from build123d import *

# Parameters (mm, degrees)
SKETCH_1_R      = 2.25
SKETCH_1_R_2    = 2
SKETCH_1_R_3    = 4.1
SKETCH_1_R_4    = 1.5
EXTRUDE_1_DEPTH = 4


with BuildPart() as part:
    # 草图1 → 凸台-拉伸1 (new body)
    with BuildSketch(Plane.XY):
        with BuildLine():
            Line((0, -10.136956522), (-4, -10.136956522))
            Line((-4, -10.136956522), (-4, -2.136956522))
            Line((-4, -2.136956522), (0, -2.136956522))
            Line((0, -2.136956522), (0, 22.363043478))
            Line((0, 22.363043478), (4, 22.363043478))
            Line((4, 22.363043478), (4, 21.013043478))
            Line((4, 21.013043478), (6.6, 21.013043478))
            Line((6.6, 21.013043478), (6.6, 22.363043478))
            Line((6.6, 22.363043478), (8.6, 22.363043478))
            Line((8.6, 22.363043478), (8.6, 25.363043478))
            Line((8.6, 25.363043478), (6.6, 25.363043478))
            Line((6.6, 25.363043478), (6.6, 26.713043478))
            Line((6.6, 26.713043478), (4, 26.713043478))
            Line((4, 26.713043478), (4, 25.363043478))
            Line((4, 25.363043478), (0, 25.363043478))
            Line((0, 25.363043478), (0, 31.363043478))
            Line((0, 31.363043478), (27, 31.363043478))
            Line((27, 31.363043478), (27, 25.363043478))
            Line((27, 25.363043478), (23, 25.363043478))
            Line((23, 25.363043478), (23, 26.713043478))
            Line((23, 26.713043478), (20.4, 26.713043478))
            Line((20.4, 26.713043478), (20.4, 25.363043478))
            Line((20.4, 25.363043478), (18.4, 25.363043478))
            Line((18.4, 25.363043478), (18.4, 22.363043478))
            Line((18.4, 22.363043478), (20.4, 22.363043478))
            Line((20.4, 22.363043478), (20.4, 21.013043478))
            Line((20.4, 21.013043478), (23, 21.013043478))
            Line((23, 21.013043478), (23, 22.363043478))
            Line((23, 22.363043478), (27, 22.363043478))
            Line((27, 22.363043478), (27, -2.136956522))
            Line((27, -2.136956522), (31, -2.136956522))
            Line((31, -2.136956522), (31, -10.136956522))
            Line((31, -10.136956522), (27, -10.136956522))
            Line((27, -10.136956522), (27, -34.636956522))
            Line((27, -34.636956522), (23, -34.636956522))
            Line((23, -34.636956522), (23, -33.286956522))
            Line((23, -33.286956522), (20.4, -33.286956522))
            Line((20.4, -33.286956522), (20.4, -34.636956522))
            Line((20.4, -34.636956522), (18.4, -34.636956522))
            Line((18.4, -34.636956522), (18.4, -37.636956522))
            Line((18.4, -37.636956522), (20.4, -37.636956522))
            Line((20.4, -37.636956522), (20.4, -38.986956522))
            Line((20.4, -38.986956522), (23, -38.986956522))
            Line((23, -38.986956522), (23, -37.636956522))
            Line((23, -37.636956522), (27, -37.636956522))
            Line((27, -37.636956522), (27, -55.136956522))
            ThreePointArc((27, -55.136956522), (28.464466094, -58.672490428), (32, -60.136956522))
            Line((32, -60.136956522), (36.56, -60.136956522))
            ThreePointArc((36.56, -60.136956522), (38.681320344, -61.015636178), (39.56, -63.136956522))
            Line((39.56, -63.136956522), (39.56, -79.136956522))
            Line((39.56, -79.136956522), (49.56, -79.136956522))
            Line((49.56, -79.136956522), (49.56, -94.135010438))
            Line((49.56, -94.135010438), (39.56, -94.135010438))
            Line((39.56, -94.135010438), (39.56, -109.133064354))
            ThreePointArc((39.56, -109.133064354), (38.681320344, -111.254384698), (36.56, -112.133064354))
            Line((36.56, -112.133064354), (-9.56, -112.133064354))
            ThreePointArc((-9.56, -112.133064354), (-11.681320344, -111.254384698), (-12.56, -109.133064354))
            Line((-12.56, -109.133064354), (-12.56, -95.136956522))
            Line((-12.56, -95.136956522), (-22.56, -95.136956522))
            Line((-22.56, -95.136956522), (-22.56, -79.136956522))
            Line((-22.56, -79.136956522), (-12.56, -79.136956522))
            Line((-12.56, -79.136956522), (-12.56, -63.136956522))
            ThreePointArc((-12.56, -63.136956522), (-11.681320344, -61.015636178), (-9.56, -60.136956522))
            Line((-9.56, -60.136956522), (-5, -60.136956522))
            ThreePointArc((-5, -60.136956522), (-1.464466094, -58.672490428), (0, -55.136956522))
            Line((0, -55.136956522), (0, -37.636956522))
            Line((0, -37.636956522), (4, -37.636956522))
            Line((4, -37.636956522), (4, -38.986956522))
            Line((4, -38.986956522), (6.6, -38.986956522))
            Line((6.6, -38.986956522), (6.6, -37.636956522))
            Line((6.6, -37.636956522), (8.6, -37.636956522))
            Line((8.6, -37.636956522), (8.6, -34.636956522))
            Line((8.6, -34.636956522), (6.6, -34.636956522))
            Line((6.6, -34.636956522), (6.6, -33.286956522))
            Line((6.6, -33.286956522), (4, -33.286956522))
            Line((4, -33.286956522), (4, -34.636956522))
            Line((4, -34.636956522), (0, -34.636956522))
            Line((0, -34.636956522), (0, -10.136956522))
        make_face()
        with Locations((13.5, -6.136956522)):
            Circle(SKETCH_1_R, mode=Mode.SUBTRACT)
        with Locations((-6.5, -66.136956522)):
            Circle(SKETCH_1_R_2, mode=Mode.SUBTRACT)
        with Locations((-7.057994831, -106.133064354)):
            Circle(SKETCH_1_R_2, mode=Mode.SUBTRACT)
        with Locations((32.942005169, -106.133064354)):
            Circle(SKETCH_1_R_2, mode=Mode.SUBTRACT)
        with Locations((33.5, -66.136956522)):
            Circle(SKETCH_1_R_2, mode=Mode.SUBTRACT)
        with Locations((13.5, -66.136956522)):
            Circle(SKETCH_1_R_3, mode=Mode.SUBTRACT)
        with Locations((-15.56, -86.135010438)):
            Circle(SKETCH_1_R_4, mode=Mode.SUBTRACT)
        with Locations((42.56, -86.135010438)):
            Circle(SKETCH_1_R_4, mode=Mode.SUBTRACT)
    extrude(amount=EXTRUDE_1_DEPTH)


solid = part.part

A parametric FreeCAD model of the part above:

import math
import FreeCAD as App
import Part
import Sketcher

doc = App.newDocument("Part")
body = doc.addObject("PartDesign::Body", "Body")

sketch1 = body.newObject("Sketcher::SketchObject", "Sketch")
sketch1.AttachmentSupport = (doc.getObject("XY_Plane"), [""])
sketch1.MapMode = "FlatFace"
sketch1.addGeometry([
    Part.LineSegment(App.Vector(-4, -10.1, 0), App.Vector(0, -10.1, 0)),
    Part.LineSegment(App.Vector(0, -10.1, 0), App.Vector(0, -34.6, 0)),
    Part.LineSegment(App.Vector(0, -34.6, 0), App.Vector(4, -34.6, 0)),
    Part.LineSegment(App.Vector(4, -34.6, 0), App.Vector(4, -33.3, 0)),
    Part.LineSegment(App.Vector(4, -33.3, 0), App.Vector(6.6, -33.3, 0)),
    Part.LineSegment(App.Vector(6.6, -33.3, 0), App.Vector(6.6, -34.6, 0)),
    Part.LineSegment(App.Vector(6.6, -34.6, 0), App.Vector(8.6, -34.6, 0)),
    Part.LineSegment(App.Vector(8.6, -34.6, 0), App.Vector(8.6, -37.6, 0)),
    Part.LineSegment(App.Vector(8.6, -37.6, 0), App.Vector(6.6, -37.6, 0)),
    Part.LineSegment(App.Vector(6.6, -37.6, 0), App.Vector(6.6, -39, 0)),
    Part.LineSegment(App.Vector(6.6, -39, 0), App.Vector(4, -39, 0)),
    Part.LineSegment(App.Vector(4, -39, 0), App.Vector(4, -37.6, 0)),
    Part.LineSegment(App.Vector(4, -37.6, 0), App.Vector(0, -37.6, 0)),
    Part.LineSegment(App.Vector(0, -37.6, 0), App.Vector(0, -55.1, 0)),
    Part.ArcOfCircle(Part.Circle(App.Vector(-5, -55.1, 0), App.Vector(0, 0, 1), 5), math.radians(-90), math.radians(0)),
    Part.LineSegment(App.Vector(-5, -60.1, 0), App.Vector(-9.6, -60.1, 0)),
    Part.ArcOfCircle(Part.Circle(App.Vector(-9.6, -63.1, 0), App.Vector(0, 0, 1), 3), math.radians(90), math.radians(180)),
    Part.LineSegment(App.Vector(-12.6, -63.1, 0), App.Vector(-12.6, -79.1, 0)),
    Part.LineSegment(App.Vector(-12.6, -79.1, 0), App.Vector(-22.6, -79.1, 0)),
    Part.LineSegment(App.Vector(-22.6, -79.1, 0), App.Vector(-22.6, -95.1, 0)),
    Part.LineSegment(App.Vector(-22.6, -95.1, 0), App.Vector(-12.6, -95.1, 0)),
    Part.LineSegment(App.Vector(-12.6, -95.1, 0), App.Vector(-12.6, -109.1, 0)),
    Part.ArcOfCircle(Part.Circle(App.Vector(-9.6, -109.1, 0), App.Vector(0, 0, 1), 3), math.radians(180), math.radians(270)),
    Part.LineSegment(App.Vector(-9.6, -112.1, 0), App.Vector(36.6, -112.1, 0)),
    Part.ArcOfCircle(Part.Circle(App.Vector(36.6, -109.1, 0), App.Vector(0, 0, 1), 3), math.radians(-90), math.radians(0)),
    Part.LineSegment(App.Vector(39.6, -109.1, 0), App.Vector(39.6, -94.1, 0)),
    Part.LineSegment(App.Vector(39.6, -94.1, 0), App.Vector(49.6, -94.1, 0)),
    Part.LineSegment(App.Vector(49.6, -94.1, 0), App.Vector(49.6, -79.1, 0)),
    Part.LineSegment(App.Vector(49.6, -79.1, 0), App.Vector(39.6, -79.1, 0)),
    Part.LineSegment(App.Vector(39.6, -79.1, 0), App.Vector(39.6, -63.1, 0)),
    Part.ArcOfCircle(Part.Circle(App.Vector(36.6, -63.1, 0), App.Vector(0, 0, 1), 3), math.radians(0), math.radians(90)),
    Part.LineSegment(App.Vector(36.6, -60.1, 0), App.Vector(32, -60.1, 0)),
    Part.ArcOfCircle(Part.Circle(App.Vector(32, -55.1, 0), App.Vector(0, 0, 1), 5), math.radians(180), math.radians(270)),
    Part.LineSegment(App.Vector(27, -55.1, 0), App.Vector(27, -37.6, 0)),
    Part.LineSegment(App.Vector(27, -37.6, 0), App.Vector(23, -37.6, 0)),
    Part.LineSegment(App.Vector(23, -37.6, 0), App.Vector(23, -39, 0)),
    Part.LineSegment(App.Vector(23, -39, 0), App.Vector(20.4, -39, 0)),
    Part.LineSegment(App.Vector(20.4, -39, 0), App.Vector(20.4, -37.6, 0)),
    Part.LineSegment(App.Vector(20.4, -37.6, 0), App.Vector(18.4, -37.6, 0)),
    Part.LineSegment(App.Vector(18.4, -37.6, 0), App.Vector(18.4, -34.6, 0)),
    Part.LineSegment(App.Vector(18.4, -34.6, 0), App.Vector(20.4, -34.6, 0)),
    Part.LineSegment(App.Vector(20.4, -34.6, 0), App.Vector(20.4, -33.3, 0)),
    Part.LineSegment(App.Vector(20.4, -33.3, 0), App.Vector(23, -33.3, 0)),
    Part.LineSegment(App.Vector(23, -33.3, 0), App.Vector(23, -34.6, 0)),
    Part.LineSegment(App.Vector(23, -34.6, 0), App.Vector(27, -34.6, 0)),
    Part.LineSegment(App.Vector(27, -34.6, 0), App.Vector(27, -10.1, 0)),
    Part.LineSegment(App.Vector(27, -10.1, 0), App.Vector(31, -10.1, 0)),
    Part.LineSegment(App.Vector(31, -10.1, 0), App.Vector(31, -2.1, 0)),
    Part.LineSegment(App.Vector(31, -2.1, 0), App.Vector(27, -2.1, 0)),
    Part.LineSegment(App.Vector(27, -2.1, 0), App.Vector(27, 22.4, 0)),
    Part.LineSegment(App.Vector(27, 22.4, 0), App.Vector(23, 22.4, 0)),
    Part.LineSegment(App.Vector(23, 22.4, 0), App.Vector(23, 21, 0)),
    Part.LineSegment(App.Vector(23, 21, 0), App.Vector(20.4, 21, 0)),
    Part.LineSegment(App.Vector(20.4, 21, 0), App.Vector(20.4, 22.4, 0)),
    Part.LineSegment(App.Vector(20.4, 22.4, 0), App.Vector(18.4, 22.4, 0)),
    Part.LineSegment(App.Vector(18.4, 22.4, 0), App.Vector(18.4, 25.4, 0)),
    Part.LineSegment(App.Vector(18.4, 25.4, 0), App.Vector(20.4, 25.4, 0)),
    Part.LineSegment(App.Vector(20.4, 25.4, 0), App.Vector(20.4, 26.7, 0)),
    Part.LineSegment(App.Vector(20.4, 26.7, 0), App.Vector(23, 26.7, 0)),
    Part.LineSegment(App.Vector(23, 26.7, 0), App.Vector(23, 25.4, 0)),
    Part.LineSegment(App.Vector(23, 25.4, 0), App.Vector(27, 25.4, 0)),
    Part.LineSegment(App.Vector(27, 25.4, 0), App.Vector(27, 31.4, 0)),
    Part.LineSegment(App.Vector(27, 31.4, 0), App.Vector(0, 31.4, 0)),
    Part.LineSegment(App.Vector(0, 31.4, 0), App.Vector(0, 25.4, 0)),
    Part.LineSegment(App.Vector(0, 25.4, 0), App.Vector(4, 25.4, 0)),
    Part.LineSegment(App.Vector(4, 25.4, 0), App.Vector(4, 26.7, 0)),
    Part.LineSegment(App.Vector(4, 26.7, 0), App.Vector(6.6, 26.7, 0)),
    Part.LineSegment(App.Vector(6.6, 26.7, 0), App.Vector(6.6, 25.4, 0)),
    Part.LineSegment(App.Vector(6.6, 25.4, 0), App.Vector(8.6, 25.4, 0)),
    Part.LineSegment(App.Vector(8.6, 25.4, 0), App.Vector(8.6, 22.4, 0)),
    Part.LineSegment(App.Vector(8.6, 22.4, 0), App.Vector(6.6, 22.4, 0)),
    Part.LineSegment(App.Vector(6.6, 22.4, 0), App.Vector(6.6, 21, 0)),
    Part.LineSegment(App.Vector(6.6, 21, 0), App.Vector(4, 21, 0)),
    Part.LineSegment(App.Vector(4, 21, 0), App.Vector(4, 22.4, 0)),
    Part.LineSegment(App.Vector(4, 22.4, 0), App.Vector(0, 22.4, 0)),
    Part.LineSegment(App.Vector(0, 22.4, 0), App.Vector(0, -2.1, 0)),
    Part.LineSegment(App.Vector(0, -2.1, 0), App.Vector(-4, -2.1, 0)),
    Part.LineSegment(App.Vector(-4, -2.1, 0), App.Vector(-4, -10.1, 0)),
    Part.Circle(App.Vector(32.9, -106.1, 0), App.Vector(0, 0, 1), 2),
    Part.Circle(App.Vector(42.6, -86.1, 0), App.Vector(0, 0, 1), 1.5),
    Part.Circle(App.Vector(33.5, -66.1, 0), App.Vector(0, 0, 1), 2),
    Part.Circle(App.Vector(-7.1, -106.1, 0), App.Vector(0, 0, 1), 2),
    Part.Circle(App.Vector(-15.6, -86.1, 0), App.Vector(0, 0, 1), 1.5),
    Part.Circle(App.Vector(13.5, -66.1, 0), App.Vector(0, 0, 1), 4.1),
    Part.Circle(App.Vector(-6.5, -66.1, 0), App.Vector(0, 0, 1), 2),
    Part.Circle(App.Vector(13.5, -6.1, 0), App.Vector(0, 0, 1), 2.2),
], False)
sketch1.addConstraint([
    Sketcher.Constraint("Coincident", 0, 2, 1, 1),
    Sketcher.Constraint("Coincident", 1, 2, 2, 1),
    Sketcher.Constraint("Coincident", 2, 2, 3, 1),
    Sketcher.Constraint("Coincident", 3, 2, 4, 1),
    Sketcher.Constraint("Coincident", 4, 2, 5, 1),
    Sketcher.Constraint("Coincident", 5, 2, 6, 1),
    Sketcher.Constraint("Coincident", 6, 2, 7, 1),
    Sketcher.Constraint("Coincident", 7, 2, 8, 1),
    Sketcher.Constraint("Coincident", 8, 2, 9, 1),
    Sketcher.Constraint("Coincident", 9, 2, 10, 1),
    Sketcher.Constraint("Coincident", 10, 2, 11, 1),
    Sketcher.Constraint("Coincident", 11, 2, 12, 1),
    Sketcher.Constraint("Coincident", 12, 2, 13, 1),
    Sketcher.Constraint("Tangent", 13, 2, 14, 2),
    Sketcher.Constraint("Tangent", 14, 1, 15, 1),
    Sketcher.Constraint("Tangent", 15, 2, 16, 1),
    Sketcher.Constraint("Tangent", 16, 2, 17, 1),
    Sketcher.Constraint("Coincident", 17, 2, 18, 1),
    Sketcher.Constraint("Coincident", 18, 2, 19, 1),
    Sketcher.Constraint("Coincident", 19, 2, 20, 1),
    Sketcher.Constraint("Coincident", 20, 2, 21, 1),
    Sketcher.Constraint("Tangent", 21, 2, 22, 1),
    Sketcher.Constraint("Tangent", 22, 2, 23, 1),
    Sketcher.Constraint("Tangent", 23, 2, 24, 1),
    Sketcher.Constraint("Tangent", 24, 2, 25, 1),
    Sketcher.Constraint("Coincident", 25, 2, 26, 1),
    Sketcher.Constraint("Coincident", 26, 2, 27, 1),
    Sketcher.Constraint("Coincident", 27, 2, 28, 1),
    Sketcher.Constraint("Coincident", 28, 2, 29, 1),
    Sketcher.Constraint("Tangent", 29, 2, 30, 1),
    Sketcher.Constraint("Tangent", 30, 2, 31, 1),
    Sketcher.Constraint("Tangent", 31, 2, 32, 2),
    Sketcher.Constraint("Tangent", 32, 1, 33, 1),
    Sketcher.Constraint("Coincident", 33, 2, 34, 1),
    Sketcher.Constraint("Coincident", 34, 2, 35, 1),
    Sketcher.Constraint("Coincident", 35, 2, 36, 1),
    Sketcher.Constraint("Coincident", 36, 2, 37, 1),
    Sketcher.Constraint("Coincident", 37, 2, 38, 1),
    Sketcher.Constraint("Coincident", 38, 2, 39, 1),
    Sketcher.Constraint("Coincident", 39, 2, 40, 1),
    Sketcher.Constraint("Coincident", 40, 2, 41, 1),
    Sketcher.Constraint("Coincident", 41, 2, 42, 1),
    Sketcher.Constraint("Coincident", 42, 2, 43, 1),
    Sketcher.Constraint("Coincident", 43, 2, 44, 1),
    Sketcher.Constraint("Coincident", 44, 2, 45, 1),
    Sketcher.Constraint("Coincident", 45, 2, 46, 1),
    Sketcher.Constraint("Coincident", 46, 2, 47, 1),
    Sketcher.Constraint("Coincident", 47, 2, 48, 1),
    Sketcher.Constraint("Coincident", 48, 2, 49, 1),
    Sketcher.Constraint("Coincident", 49, 2, 50, 1),
    Sketcher.Constraint("Coincident", 50, 2, 51, 1),
    Sketcher.Constraint("Coincident", 51, 2, 52, 1),
    Sketcher.Constraint("Coincident", 52, 2, 53, 1),
    Sketcher.Constraint("Coincident", 53, 2, 54, 1),
    Sketcher.Constraint("Coincident", 54, 2, 55, 1),
    Sketcher.Constraint("Coincident", 55, 2, 56, 1),
    Sketcher.Constraint("Coincident", 56, 2, 57, 1),
    Sketcher.Constraint("Coincident", 57, 2, 58, 1),
    Sketcher.Constraint("Coincident", 58, 2, 59, 1),
    Sketcher.Constraint("Coincident", 59, 2, 60, 1),
    Sketcher.Constraint("Coincident", 60, 2, 61, 1),
    Sketcher.Constraint("Coincident", 61, 2, 62, 1),
    Sketcher.Constraint("Coincident", 62, 2, 63, 1),
    Sketcher.Constraint("Coincident", 63, 2, 64, 1),
    Sketcher.Constraint("Coincident", 64, 2, 65, 1),
    Sketcher.Constraint("Coincident", 65, 2, 66, 1),
    Sketcher.Constraint("Coincident", 66, 2, 67, 1),
    Sketcher.Constraint("Coincident", 67, 2, 68, 1),
    Sketcher.Constraint("Coincident", 68, 2, 69, 1),
    Sketcher.Constraint("Coincident", 69, 2, 70, 1),
    Sketcher.Constraint("Coincident", 70, 2, 71, 1),
    Sketcher.Constraint("Coincident", 71, 2, 72, 1),
    Sketcher.Constraint("Coincident", 72, 2, 73, 1),
    Sketcher.Constraint("Coincident", 73, 2, 74, 1),
    Sketcher.Constraint("Coincident", 74, 2, 75, 1),
    Sketcher.Constraint("Coincident", 75, 2, 76, 1),
    Sketcher.Constraint("Coincident", 76, 2, 77, 1),
    Sketcher.Constraint("Coincident", 77, 2, 0, 1),
    Sketcher.Constraint("Horizontal", 0),
    Sketcher.Constraint("Vertical", 1),
    Sketcher.Constraint("Horizontal", 2),
    Sketcher.Constraint("Vertical", 3),
    Sketcher.Constraint("Horizontal", 4),
    Sketcher.Constraint("Vertical", 5),
    Sketcher.Constraint("Horizontal", 6),
    Sketcher.Constraint("Vertical", 7),
    Sketcher.Constraint("Horizontal", 8),
    Sketcher.Constraint("Vertical", 9),
    Sketcher.Constraint("Horizontal", 10),
    Sketcher.Constraint("Vertical", 11),
    Sketcher.Constraint("Horizontal", 12),
    Sketcher.Constraint("Vertical", 13),
    Sketcher.Constraint("Horizontal", 15),
    Sketcher.Constraint("Vertical", 17),
    Sketcher.Constraint("Horizontal", 18),
    Sketcher.Constraint("Vertical", 19),
    Sketcher.Constraint("Horizontal", 20),
    Sketcher.Constraint("Vertical", 21),
    Sketcher.Constraint("Horizontal", 23),
    Sketcher.Constraint("Vertical", 25),
    Sketcher.Constraint("Horizontal", 26),
    Sketcher.Constraint("Vertical", 27),
    Sketcher.Constraint("Horizontal", 28),
    Sketcher.Constraint("Vertical", 29),
    Sketcher.Constraint("Horizontal", 31),
    Sketcher.Constraint("Vertical", 33),
    Sketcher.Constraint("Horizontal", 34),
    Sketcher.Constraint("Vertical", 35),
    Sketcher.Constraint("Horizontal", 36),
    Sketcher.Constraint("Vertical", 37),
    Sketcher.Constraint("Horizontal", 38),
    Sketcher.Constraint("Vertical", 39),
    Sketcher.Constraint("Horizontal", 40),
    Sketcher.Constraint("Vertical", 41),
    Sketcher.Constraint("Horizontal", 42),
    Sketcher.Constraint("Vertical", 43),
    Sketcher.Constraint("Horizontal", 44),
    Sketcher.Constraint("Vertical", 45),
    Sketcher.Constraint("Horizontal", 46),
    Sketcher.Constraint("Vertical", 47),
    Sketcher.Constraint("Horizontal", 48),
    Sketcher.Constraint("Vertical", 49),
    Sketcher.Constraint("Horizontal", 50),
    Sketcher.Constraint("Vertical", 51),
    Sketcher.Constraint("Horizontal", 52),
    Sketcher.Constraint("Vertical", 53),
    Sketcher.Constraint("Horizontal", 54),
    Sketcher.Constraint("Vertical", 55),
    Sketcher.Constraint("Horizontal", 56),
    Sketcher.Constraint("Vertical", 57),
    Sketcher.Constraint("Horizontal", 58),
    Sketcher.Constraint("Vertical", 59),
    Sketcher.Constraint("Horizontal", 60),
    Sketcher.Constraint("Vertical", 61),
    Sketcher.Constraint("Horizontal", 62),
    Sketcher.Constraint("Vertical", 63),
    Sketcher.Constraint("Horizontal", 64),
    Sketcher.Constraint("Vertical", 65),
    Sketcher.Constraint("Horizontal", 66),
    Sketcher.Constraint("Vertical", 67),
    Sketcher.Constraint("Horizontal", 68),
    Sketcher.Constraint("Vertical", 69),
    Sketcher.Constraint("Horizontal", 70),
    Sketcher.Constraint("Vertical", 71),
    Sketcher.Constraint("Horizontal", 72),
    Sketcher.Constraint("Vertical", 73),
    Sketcher.Constraint("Horizontal", 74),
    Sketcher.Constraint("Vertical", 75),
    Sketcher.Constraint("Horizontal", 76),
    Sketcher.Constraint("Vertical", 77),
    Sketcher.Constraint("Equal", 16, 22),
    Sketcher.Constraint("Equal", 22, 24),
    Sketcher.Constraint("Equal", 24, 30),
    Sketcher.Constraint("Equal", 14, 32),
    Sketcher.Constraint("Equal", 78, 80),
    Sketcher.Constraint("Equal", 80, 81),
    Sketcher.Constraint("Equal", 79, 82),
    Sketcher.Constraint("Equal", 81, 84),
    Sketcher.Constraint("PointOnObject", 0, 2, -2),
    Sketcher.Constraint("PointOnObject", 12, 2, -2),
    Sketcher.Constraint("PointOnObject", 62, 2, -2),
    Sketcher.Constraint("PointOnObject", 74, 2, -2),
    Sketcher.Constraint("Horizontal", 16, 3, 30, 3),
    Sketcher.Constraint("Horizontal", 78, 3, 81, 3),
    Sketcher.Constraint("Horizontal", 79, 3, 82, 3),
    Sketcher.Constraint("Horizontal", 80, 3, 83, 3),
    Sketcher.Constraint("Horizontal", 83, 3, 84, 3),
    Sketcher.Constraint("Horizontal", 2, 2, 5, 2),
    Sketcher.Constraint("Horizontal", 8, 2, 11, 2),
    Sketcher.Constraint("Horizontal", 18, 2, 27, 2),
    Sketcher.Constraint("Horizontal", 12, 2, 33, 2),
    Sketcher.Constraint("Horizontal", 10, 2, 35, 2),
    Sketcher.Constraint("Horizontal", 34, 2, 37, 2),
    Sketcher.Constraint("Horizontal", 6, 2, 39, 2),
    Sketcher.Constraint("Horizontal", 4, 2, 41, 2),
    Sketcher.Constraint("Horizontal", 40, 2, 43, 2),
    Sketcher.Constraint("Horizontal", 0, 2, 45, 2),
    Sketcher.Constraint("Horizontal", 50, 2, 53, 2),
    Sketcher.Constraint("Horizontal", 56, 2, 59, 2),
    Sketcher.Constraint("Horizontal", 60, 2, 63, 2),
    Sketcher.Constraint("Horizontal", 58, 2, 65, 2),
    Sketcher.Constraint("Horizontal", 64, 2, 67, 2),
    Sketcher.Constraint("Horizontal", 54, 2, 69, 2),
    Sketcher.Constraint("Horizontal", 52, 2, 71, 2),
    Sketcher.Constraint("Horizontal", 70, 2, 73, 2),
    Sketcher.Constraint("Horizontal", 48, 2, 75, 2),
    Sketcher.Constraint("Vertical", 16, 3, 22, 3),
    Sketcher.Constraint("Vertical", 24, 3, 30, 3),
    Sketcher.Constraint("Vertical", 83, 3, 85, 3),
    Sketcher.Constraint("Vertical", 5, 2, 8, 2),
    Sketcher.Constraint("Vertical", 3, 2, 10, 2),
    Sketcher.Constraint("Vertical", 37, 2, 40, 2),
    Sketcher.Constraint("Vertical", 35, 2, 42, 2),
    Sketcher.Constraint("Vertical", 33, 2, 44, 2),
    Sketcher.Constraint("Vertical", 45, 2, 48, 2),
    Sketcher.Constraint("Vertical", 43, 2, 50, 2),
    Sketcher.Constraint("Vertical", 41, 2, 52, 2),
    Sketcher.Constraint("Vertical", 39, 2, 54, 2),
    Sketcher.Constraint("Vertical", 53, 2, 56, 2),
    Sketcher.Constraint("Vertical", 51, 2, 58, 2),
    Sketcher.Constraint("Vertical", 49, 2, 60, 2),
    Sketcher.Constraint("Vertical", 11, 2, 64, 2),
    Sketcher.Constraint("Vertical", 9, 2, 66, 2),
    Sketcher.Constraint("Vertical", 7, 2, 68, 2),
    Sketcher.Constraint("Vertical", 67, 2, 70, 2),
    Sketcher.Constraint("Vertical", 65, 2, 72, 2),
    Sketcher.Constraint("Equal", 0, 2),
    Sketcher.Constraint("Equal", 20, 26),
    Sketcher.Constraint("Equal", 15, 31),
    Sketcher.Constraint("Equal", 12, 34),
    Sketcher.Constraint("Equal", 10, 36),
    Sketcher.Constraint("Equal", 8, 38),
    Sketcher.Constraint("Equal", 44, 46),
    Sketcher.Constraint("Equal", 5, 9),
    Sketcher.Constraint("Equal", 17, 19),
    Sketcher.Constraint("Equal", 25, 27),
    Sketcher.Constraint("Equal", 45, 49),
    Sketcher.Constraint("Equal", 43, 51),
    Sketcher.Constraint("Equal", 39, 55),
    Sketcher.Constraint("Equal", 53, 57),
    Sketcher.Constraint("Diameter", 78, 4.0),
    Sketcher.Constraint("Diameter", 79, 3.0),
    Sketcher.Constraint("Radius", 14, 5.0),
    Sketcher.Constraint("Radius", 16, 3.0),
    Sketcher.Constraint("Diameter", 83, 8.2),
    Sketcher.Constraint("Diameter", 85, 4.5),
    Sketcher.Constraint("DistanceX", 0, 1, 0, 2, 4.0),
    Sketcher.Constraint("DistanceX", 6, 1, 6, 2, 2.0),
    Sketcher.Constraint("DistanceX", 18, 2, 18, 1, 10.0),
    Sketcher.Constraint("DistanceX", 62, 2, 62, 1, 27.0),
    Sketcher.Constraint("DistanceY", 7, 2, 7, 1, 3.0),
    Sketcher.Constraint("DistanceY", 17, 2, 17, 1, 16.0),
    Sketcher.Constraint("DistanceY", 47, 1, 47, 2, 8.0),
    Sketcher.Constraint("DistanceY", 61, 1, 61, 2, 6.0),
    Sketcher.Constraint("DistanceX", 4, 1, 4, 2, 2.6),
    Sketcher.Constraint("DistanceY", 1, 2, 1, 1, 24.5),
    Sketcher.Constraint("DistanceY", 13, 2, 13, 1, 17.5),
    Sketcher.Constraint("DistanceX", 15, 2, 15, 1, 4.56),
    Sketcher.Constraint("DistanceY", 3, 1, 3, 2, 1.35),
    Sketcher.Constraint("DistanceX", -1, 1, 80, 3, 33.5),
    Sketcher.Constraint("DistanceX", -1, 1, 83, 3, 13.5),
    Sketcher.Constraint("DistanceX", 84, 3, -1, 1, 6.5),
    Sketcher.Constraint("DistanceX", -1, 1, 79, 3, 42.56),
    Sketcher.Constraint("DistanceX", 82, 3, -1, 1, 15.56),
    Sketcher.Constraint("DistanceY", 21, 2, 21, 1, 13.996108),
    Sketcher.Constraint("DistanceY", 79, 3, -1, 1, 86.13501),
    Sketcher.Constraint("DistanceY", 25, 2, -1, 1, 94.13501),
    Sketcher.Constraint("DistanceX", -1, 1, 78, 3, 32.942005),
    Sketcher.Constraint("DistanceY", 78, 3, -1, 1, 106.133064),
    Sketcher.Constraint("DistanceY", 80, 3, -1, 1, 66.136957),
    Sketcher.Constraint("DistanceX", 81, 3, -1, 1, 7.057995),
    Sketcher.Constraint("DistanceY", 85, 3, -1, 1, 6.136957),
])
pad1 = body.newObject("PartDesign::Pad", "Pad")
pad1.Profile = sketch1
pad1.Length = 4

doc.recompute()
